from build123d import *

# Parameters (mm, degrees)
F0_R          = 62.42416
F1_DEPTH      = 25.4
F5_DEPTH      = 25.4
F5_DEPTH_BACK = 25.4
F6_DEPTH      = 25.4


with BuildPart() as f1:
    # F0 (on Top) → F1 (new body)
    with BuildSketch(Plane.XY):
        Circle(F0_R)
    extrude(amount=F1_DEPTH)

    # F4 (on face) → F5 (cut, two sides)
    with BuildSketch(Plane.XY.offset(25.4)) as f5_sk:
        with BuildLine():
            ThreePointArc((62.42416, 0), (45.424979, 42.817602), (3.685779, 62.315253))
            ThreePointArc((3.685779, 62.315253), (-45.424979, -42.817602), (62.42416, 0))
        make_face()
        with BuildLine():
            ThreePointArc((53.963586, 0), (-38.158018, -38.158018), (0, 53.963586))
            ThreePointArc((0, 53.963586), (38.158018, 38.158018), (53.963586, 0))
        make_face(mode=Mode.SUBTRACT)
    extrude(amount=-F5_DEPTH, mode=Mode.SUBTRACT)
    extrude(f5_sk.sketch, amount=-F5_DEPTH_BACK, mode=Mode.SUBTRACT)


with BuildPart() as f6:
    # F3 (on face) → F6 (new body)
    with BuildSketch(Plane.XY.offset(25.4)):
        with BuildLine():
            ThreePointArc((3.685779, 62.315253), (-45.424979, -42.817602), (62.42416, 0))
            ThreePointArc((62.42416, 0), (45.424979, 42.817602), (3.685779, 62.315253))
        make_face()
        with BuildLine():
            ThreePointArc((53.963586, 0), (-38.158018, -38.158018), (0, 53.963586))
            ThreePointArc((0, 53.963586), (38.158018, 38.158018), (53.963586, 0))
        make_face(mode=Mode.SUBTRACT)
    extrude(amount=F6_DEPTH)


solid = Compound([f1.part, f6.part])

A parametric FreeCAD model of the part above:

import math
import FreeCAD as App
import Part
import Sketcher

doc = App.newDocument("Part")
params = doc.addObject("Spreadsheet::Sheet", "Params")
for row, (alias, value) in enumerate([
    ("pad1_length", "1 in"),
    ("pocket1_length", "1 in"),
    ("pocket2_length", "1 in"),
    ("pad2_length", "1 in"),
], start=1):
    params.set(f"A{row}", alias)
    params.set(f"B{row}", "=" + value)
    params.setAlias(f"B{row}", alias)

body = doc.addObject("PartDesign::Body", "Body")

sketch1 = body.newObject("Sketcher::SketchObject", "Sketch")
sketch1.AttachmentSupport = (doc.getObject("XY_Plane"), [""])
sketch1.MapMode = "FlatFace"
sketch1.addGeometry(Part.Circle(App.Vector(0, 0, 0), App.Vector(0, 0, 1), 62), False)
sketch1.addConstraint([
    Sketcher.Constraint("Coincident", 0, 3, -1, 1),
    Sketcher.Constraint("Diameter", 0, 124.84832),
])
pad1 = body.newObject("PartDesign::Pad", "Pad")
pad1.Profile = sketch1
pad1.setExpression("Length", "Params.pad1_length")

sketch2 = body.newObject("Sketcher::SketchObject", "Sketch001")
sketch2.AttachmentSupport = (doc.getObject("XY_Plane"), [""])
sketch2.MapMode = "FlatFace"
sketch2.AttachmentOffset = App.Placement(App.Vector(0, 0, 1 * 25.4), App.Rotation())
sketch2.addGeometry([
    Part.ArcOfCircle(Part.Circle(App.Vector(0, 0, 0), App.Vector(0, 0, 1), 62), math.radians(0), math.radians(87)),
    Part.ArcOfCircle(Part.Circle(App.Vector(0, 0, 0), App.Vector(0, 0, 1), 62), math.radians(87), math.radians(360)),
    Part.ArcOfCircle(Part.Circle(App.Vector(0, 0, 0), App.Vector(0, 0, 1), 54), math.radians(0), math.radians(90)),
    Part.ArcOfCircle(Part.Circle(App.Vector(0, 0, 0), App.Vector(0, 0, 1), 54), math.radians(90), math.radians(360)),
], False)
sketch2.addConstraint([
    Sketcher.Constraint("Tangent", 0, 1, 1, 2),
    Sketcher.Constraint("Coincident", 1, 1, 0, 2),
    Sketcher.Constraint("Tangent", 2, 1, 3, 2),
    Sketcher.Constraint("Coincident", 3, 1, 2, 2),
    Sketcher.Constraint("Coincident", 0, 3, -1, 1),
    Sketcher.Constraint("Coincident", 2, 3, -1, 1),
    Sketcher.Constraint("PointOnObject", 0, 1, -1),
    Sketcher.Constraint("PointOnObject", 2, 1, -1),
    Sketcher.Constraint("PointOnObject", 3, 1, -2),
    Sketcher.Constraint("Radius", 0, 62.424159),
    Sketcher.Constraint("Radius", 2, 53.963585),
    Sketcher.Constraint("DistanceX", -1, 1, 1, 1, 3.685779),
])
pocket1 = body.newObject("PartDesign::Pocket", "Pocket")
pocket1.Profile = sketch2
pocket1.setExpression("Length", "Params.pocket1_length")
pocket2 = body.newObject("PartDesign::Pocket", "Pocket001")
pocket2.Profile = sketch2
pocket2.setExpression("Length", "Params.pocket2_length")
body2 = doc.addObject("PartDesign::Body", "Body001")

sketch3 = body2.newObject("Sketcher::SketchObject", "Sketch002")
sketch3.AttachmentSupport = (doc.getObject("XY_Plane001"), [""])
sketch3.MapMode = "FlatFace"
sketch3.AttachmentOffset = App.Placement(App.Vector(0, 0, 1 * 25.4), App.Rotation())
sketch3.addGeometry([
    Part.ArcOfCircle(Part.Circle(App.Vector(0, 0, 0), App.Vector(0, 0, 1), 62), math.radians(87), math.radians(360)),
    Part.ArcOfCircle(Part.Circle(App.Vector(0, 0, 0), App.Vector(0, 0, 1), 62), math.radians(0), math.radians(87)),
    Part.ArcOfCircle(Part.Circle(App.Vector(0, 0, 0), App.Vector(0, 0, 1), 54), math.radians(0), math.radians(90)),
    Part.ArcOfCircle(Part.Circle(App.Vector(0, 0, 0), App.Vector(0, 0, 1), 54), math.radians(90), math.radians(360)),
], False)
sketch3.addConstraint([
    Sketcher.Constraint("Tangent", 0, 1, 1, 2),
    Sketcher.Constraint("Coincident", 1, 1, 0, 2),
    Sketcher.Constraint("Tangent", 2, 1, 3, 2),
    Sketcher.Constraint("Coincident", 3, 1, 2, 2),
    Sketcher.Constraint("Coincident", 0, 3, -1, 1),
    Sketcher.Constraint("Coincident", 2, 3, -1, 1),
    Sketcher.Constraint("PointOnObject", 1, 1, -1),
    Sketcher.Constraint("PointOnObject", 2, 1, -1),
    Sketcher.Constraint("PointOnObject", 3, 1, -2),
    Sketcher.Constraint("Radius", 0, 62.42416),
    Sketcher.Constraint("Radius", 2, 53.963585),
    Sketcher.Constraint("DistanceX", -1, 1, 0, 1, 3.685779),
])
pad2 = body2.newObject("PartDesign::Pad", "Pad001")
pad2.Profile = sketch3
pad2.setExpression("Length", "Params.pad2_length")

doc.recompute()
